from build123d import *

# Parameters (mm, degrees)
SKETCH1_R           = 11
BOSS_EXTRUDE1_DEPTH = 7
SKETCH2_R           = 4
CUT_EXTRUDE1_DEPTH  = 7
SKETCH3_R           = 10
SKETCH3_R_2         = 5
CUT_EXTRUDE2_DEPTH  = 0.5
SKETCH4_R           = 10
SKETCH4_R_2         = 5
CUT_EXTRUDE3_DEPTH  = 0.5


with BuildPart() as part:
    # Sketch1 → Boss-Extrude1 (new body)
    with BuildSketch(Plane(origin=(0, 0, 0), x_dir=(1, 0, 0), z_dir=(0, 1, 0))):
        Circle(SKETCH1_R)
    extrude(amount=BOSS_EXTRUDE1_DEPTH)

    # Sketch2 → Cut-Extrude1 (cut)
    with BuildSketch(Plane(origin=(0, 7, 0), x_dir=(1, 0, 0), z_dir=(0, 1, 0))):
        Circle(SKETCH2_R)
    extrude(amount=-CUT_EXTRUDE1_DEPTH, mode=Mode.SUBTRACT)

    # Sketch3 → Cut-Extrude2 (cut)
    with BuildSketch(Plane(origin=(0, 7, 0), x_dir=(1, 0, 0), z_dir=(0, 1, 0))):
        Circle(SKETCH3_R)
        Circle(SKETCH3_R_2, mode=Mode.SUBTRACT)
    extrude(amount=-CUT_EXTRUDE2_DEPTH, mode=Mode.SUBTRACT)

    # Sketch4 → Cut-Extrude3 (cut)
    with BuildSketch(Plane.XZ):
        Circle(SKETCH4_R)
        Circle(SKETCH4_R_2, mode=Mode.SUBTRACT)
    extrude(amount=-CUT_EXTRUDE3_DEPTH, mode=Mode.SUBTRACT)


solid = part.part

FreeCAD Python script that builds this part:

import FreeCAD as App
import Part
import Sketcher
from FreeCAD import Vector
Q = App.Units.Quantity

doc = App.newDocument("Part")
body = doc.addObject("PartDesign::Body", "Body")

sketch1 = doc.addObject("Sketcher::SketchObject", "Sketch")
body.addObject(sketch1)
sketch1.AttachmentSupport = (doc.XZ_Plane, [""])
sketch1.MapMode = "FlatFace"
sketch1.addGeometry(Part.Circle(Vector(0, 0, 0), Vector(0, 0, 1), 11), False)
sketch1.addConstraint([
    Sketcher.Constraint("Coincident", 0, 3, -1, 1),
    Sketcher.Constraint("Diameter", 0, Q("22 mm")),
])
pad1 = doc.addObject("PartDesign::Pad", "Pad")
body.addObject(pad1)
pad1.Profile = sketch1
pad1.Length = 7
pad1.Reversed = True

sketch2 = doc.addObject("Sketcher::SketchObject", "Sketch001")
body.addObject(sketch2)
sketch2.AttachmentSupport = (doc.XZ_Plane, [""])
sketch2.MapMode = "FlatFace"
sketch2.AttachmentOffset = App.Placement(Vector(0, 0, -7), App.Rotation())
sketch2.addGeometry(Part.Circle(Vector(0, 0, 0), Vector(0, 0, 1), 4), False)
sketch2.addConstraint([
    Sketcher.Constraint("Coincident", 0, 3, -1, 1),
    Sketcher.Constraint("Diameter", 0, Q("8 mm")),
])
pocket1 = doc.addObject("PartDesign::Pocket", "Pocket")
body.addObject(pocket1)
pocket1.Profile = sketch2
pocket1.Length = 7
pocket1.Reversed = True

sketch3 = doc.addObject("Sketcher::SketchObject", "Sketch002")
body.addObject(sketch3)
sketch3.AttachmentSupport = (doc.XZ_Plane, [""])
sketch3.MapMode = "FlatFace"
sketch3.AttachmentOffset = App.Placement(Vector(0, 0, -7), App.Rotation())
sketch3.addGeometry([
    Part.Circle(Vector(0, 0, 0), Vector(0, 0, 1), 10),
    Part.Circle(Vector(0, 0, 0), Vector(0, 0, 1), 5),
], False)
sketch3.addConstraint([
    Sketcher.Constraint("Coincident", 0, 3, -1, 1),
    Sketcher.Constraint("Coincident", 1, 3, -1, 1),
    Sketcher.Constraint("Diameter", 0, Q("20 mm")),
    Sketcher.Constraint("Diameter", 1, Q("10 mm")),
])
pocket2 = doc.addObject("PartDesign::Pocket", "Pocket001")
body.addObject(pocket2)
pocket2.Profile = sketch3
pocket2.Length = 0.5
pocket2.Reversed = True

sketch4 = doc.addObject("Sketcher::SketchObject", "Sketch003")
body.addObject(sketch4)
sketch4.AttachmentSupport = (doc.XZ_Plane, [""])
sketch4.MapMode = "FlatFace"
sketch4.addGeometry([
    Part.Circle(Vector(0, 0, 0), Vector(0, 0, 1), 10),
    Part.Circle(Vector(0, 0, 0), Vector(0, 0, 1), 5),
], False)
sketch4.addConstraint([
    Sketcher.Constraint("Coincident", 0, 3, -1, 1),
    Sketcher.Constraint("Coincident", 1, 3, -1, 1),
    Sketcher.Constraint("Diameter", 0, Q("20 mm")),
    Sketcher.Constraint("Diameter", 1, Q("10 mm")),
])
pocket3 = doc.addObject("PartDesign::Pocket", "Pocket002")
body.addObject(pocket3)
pocket3.Profile = sketch4
pocket3.Length = 0.5

doc.recompute()
